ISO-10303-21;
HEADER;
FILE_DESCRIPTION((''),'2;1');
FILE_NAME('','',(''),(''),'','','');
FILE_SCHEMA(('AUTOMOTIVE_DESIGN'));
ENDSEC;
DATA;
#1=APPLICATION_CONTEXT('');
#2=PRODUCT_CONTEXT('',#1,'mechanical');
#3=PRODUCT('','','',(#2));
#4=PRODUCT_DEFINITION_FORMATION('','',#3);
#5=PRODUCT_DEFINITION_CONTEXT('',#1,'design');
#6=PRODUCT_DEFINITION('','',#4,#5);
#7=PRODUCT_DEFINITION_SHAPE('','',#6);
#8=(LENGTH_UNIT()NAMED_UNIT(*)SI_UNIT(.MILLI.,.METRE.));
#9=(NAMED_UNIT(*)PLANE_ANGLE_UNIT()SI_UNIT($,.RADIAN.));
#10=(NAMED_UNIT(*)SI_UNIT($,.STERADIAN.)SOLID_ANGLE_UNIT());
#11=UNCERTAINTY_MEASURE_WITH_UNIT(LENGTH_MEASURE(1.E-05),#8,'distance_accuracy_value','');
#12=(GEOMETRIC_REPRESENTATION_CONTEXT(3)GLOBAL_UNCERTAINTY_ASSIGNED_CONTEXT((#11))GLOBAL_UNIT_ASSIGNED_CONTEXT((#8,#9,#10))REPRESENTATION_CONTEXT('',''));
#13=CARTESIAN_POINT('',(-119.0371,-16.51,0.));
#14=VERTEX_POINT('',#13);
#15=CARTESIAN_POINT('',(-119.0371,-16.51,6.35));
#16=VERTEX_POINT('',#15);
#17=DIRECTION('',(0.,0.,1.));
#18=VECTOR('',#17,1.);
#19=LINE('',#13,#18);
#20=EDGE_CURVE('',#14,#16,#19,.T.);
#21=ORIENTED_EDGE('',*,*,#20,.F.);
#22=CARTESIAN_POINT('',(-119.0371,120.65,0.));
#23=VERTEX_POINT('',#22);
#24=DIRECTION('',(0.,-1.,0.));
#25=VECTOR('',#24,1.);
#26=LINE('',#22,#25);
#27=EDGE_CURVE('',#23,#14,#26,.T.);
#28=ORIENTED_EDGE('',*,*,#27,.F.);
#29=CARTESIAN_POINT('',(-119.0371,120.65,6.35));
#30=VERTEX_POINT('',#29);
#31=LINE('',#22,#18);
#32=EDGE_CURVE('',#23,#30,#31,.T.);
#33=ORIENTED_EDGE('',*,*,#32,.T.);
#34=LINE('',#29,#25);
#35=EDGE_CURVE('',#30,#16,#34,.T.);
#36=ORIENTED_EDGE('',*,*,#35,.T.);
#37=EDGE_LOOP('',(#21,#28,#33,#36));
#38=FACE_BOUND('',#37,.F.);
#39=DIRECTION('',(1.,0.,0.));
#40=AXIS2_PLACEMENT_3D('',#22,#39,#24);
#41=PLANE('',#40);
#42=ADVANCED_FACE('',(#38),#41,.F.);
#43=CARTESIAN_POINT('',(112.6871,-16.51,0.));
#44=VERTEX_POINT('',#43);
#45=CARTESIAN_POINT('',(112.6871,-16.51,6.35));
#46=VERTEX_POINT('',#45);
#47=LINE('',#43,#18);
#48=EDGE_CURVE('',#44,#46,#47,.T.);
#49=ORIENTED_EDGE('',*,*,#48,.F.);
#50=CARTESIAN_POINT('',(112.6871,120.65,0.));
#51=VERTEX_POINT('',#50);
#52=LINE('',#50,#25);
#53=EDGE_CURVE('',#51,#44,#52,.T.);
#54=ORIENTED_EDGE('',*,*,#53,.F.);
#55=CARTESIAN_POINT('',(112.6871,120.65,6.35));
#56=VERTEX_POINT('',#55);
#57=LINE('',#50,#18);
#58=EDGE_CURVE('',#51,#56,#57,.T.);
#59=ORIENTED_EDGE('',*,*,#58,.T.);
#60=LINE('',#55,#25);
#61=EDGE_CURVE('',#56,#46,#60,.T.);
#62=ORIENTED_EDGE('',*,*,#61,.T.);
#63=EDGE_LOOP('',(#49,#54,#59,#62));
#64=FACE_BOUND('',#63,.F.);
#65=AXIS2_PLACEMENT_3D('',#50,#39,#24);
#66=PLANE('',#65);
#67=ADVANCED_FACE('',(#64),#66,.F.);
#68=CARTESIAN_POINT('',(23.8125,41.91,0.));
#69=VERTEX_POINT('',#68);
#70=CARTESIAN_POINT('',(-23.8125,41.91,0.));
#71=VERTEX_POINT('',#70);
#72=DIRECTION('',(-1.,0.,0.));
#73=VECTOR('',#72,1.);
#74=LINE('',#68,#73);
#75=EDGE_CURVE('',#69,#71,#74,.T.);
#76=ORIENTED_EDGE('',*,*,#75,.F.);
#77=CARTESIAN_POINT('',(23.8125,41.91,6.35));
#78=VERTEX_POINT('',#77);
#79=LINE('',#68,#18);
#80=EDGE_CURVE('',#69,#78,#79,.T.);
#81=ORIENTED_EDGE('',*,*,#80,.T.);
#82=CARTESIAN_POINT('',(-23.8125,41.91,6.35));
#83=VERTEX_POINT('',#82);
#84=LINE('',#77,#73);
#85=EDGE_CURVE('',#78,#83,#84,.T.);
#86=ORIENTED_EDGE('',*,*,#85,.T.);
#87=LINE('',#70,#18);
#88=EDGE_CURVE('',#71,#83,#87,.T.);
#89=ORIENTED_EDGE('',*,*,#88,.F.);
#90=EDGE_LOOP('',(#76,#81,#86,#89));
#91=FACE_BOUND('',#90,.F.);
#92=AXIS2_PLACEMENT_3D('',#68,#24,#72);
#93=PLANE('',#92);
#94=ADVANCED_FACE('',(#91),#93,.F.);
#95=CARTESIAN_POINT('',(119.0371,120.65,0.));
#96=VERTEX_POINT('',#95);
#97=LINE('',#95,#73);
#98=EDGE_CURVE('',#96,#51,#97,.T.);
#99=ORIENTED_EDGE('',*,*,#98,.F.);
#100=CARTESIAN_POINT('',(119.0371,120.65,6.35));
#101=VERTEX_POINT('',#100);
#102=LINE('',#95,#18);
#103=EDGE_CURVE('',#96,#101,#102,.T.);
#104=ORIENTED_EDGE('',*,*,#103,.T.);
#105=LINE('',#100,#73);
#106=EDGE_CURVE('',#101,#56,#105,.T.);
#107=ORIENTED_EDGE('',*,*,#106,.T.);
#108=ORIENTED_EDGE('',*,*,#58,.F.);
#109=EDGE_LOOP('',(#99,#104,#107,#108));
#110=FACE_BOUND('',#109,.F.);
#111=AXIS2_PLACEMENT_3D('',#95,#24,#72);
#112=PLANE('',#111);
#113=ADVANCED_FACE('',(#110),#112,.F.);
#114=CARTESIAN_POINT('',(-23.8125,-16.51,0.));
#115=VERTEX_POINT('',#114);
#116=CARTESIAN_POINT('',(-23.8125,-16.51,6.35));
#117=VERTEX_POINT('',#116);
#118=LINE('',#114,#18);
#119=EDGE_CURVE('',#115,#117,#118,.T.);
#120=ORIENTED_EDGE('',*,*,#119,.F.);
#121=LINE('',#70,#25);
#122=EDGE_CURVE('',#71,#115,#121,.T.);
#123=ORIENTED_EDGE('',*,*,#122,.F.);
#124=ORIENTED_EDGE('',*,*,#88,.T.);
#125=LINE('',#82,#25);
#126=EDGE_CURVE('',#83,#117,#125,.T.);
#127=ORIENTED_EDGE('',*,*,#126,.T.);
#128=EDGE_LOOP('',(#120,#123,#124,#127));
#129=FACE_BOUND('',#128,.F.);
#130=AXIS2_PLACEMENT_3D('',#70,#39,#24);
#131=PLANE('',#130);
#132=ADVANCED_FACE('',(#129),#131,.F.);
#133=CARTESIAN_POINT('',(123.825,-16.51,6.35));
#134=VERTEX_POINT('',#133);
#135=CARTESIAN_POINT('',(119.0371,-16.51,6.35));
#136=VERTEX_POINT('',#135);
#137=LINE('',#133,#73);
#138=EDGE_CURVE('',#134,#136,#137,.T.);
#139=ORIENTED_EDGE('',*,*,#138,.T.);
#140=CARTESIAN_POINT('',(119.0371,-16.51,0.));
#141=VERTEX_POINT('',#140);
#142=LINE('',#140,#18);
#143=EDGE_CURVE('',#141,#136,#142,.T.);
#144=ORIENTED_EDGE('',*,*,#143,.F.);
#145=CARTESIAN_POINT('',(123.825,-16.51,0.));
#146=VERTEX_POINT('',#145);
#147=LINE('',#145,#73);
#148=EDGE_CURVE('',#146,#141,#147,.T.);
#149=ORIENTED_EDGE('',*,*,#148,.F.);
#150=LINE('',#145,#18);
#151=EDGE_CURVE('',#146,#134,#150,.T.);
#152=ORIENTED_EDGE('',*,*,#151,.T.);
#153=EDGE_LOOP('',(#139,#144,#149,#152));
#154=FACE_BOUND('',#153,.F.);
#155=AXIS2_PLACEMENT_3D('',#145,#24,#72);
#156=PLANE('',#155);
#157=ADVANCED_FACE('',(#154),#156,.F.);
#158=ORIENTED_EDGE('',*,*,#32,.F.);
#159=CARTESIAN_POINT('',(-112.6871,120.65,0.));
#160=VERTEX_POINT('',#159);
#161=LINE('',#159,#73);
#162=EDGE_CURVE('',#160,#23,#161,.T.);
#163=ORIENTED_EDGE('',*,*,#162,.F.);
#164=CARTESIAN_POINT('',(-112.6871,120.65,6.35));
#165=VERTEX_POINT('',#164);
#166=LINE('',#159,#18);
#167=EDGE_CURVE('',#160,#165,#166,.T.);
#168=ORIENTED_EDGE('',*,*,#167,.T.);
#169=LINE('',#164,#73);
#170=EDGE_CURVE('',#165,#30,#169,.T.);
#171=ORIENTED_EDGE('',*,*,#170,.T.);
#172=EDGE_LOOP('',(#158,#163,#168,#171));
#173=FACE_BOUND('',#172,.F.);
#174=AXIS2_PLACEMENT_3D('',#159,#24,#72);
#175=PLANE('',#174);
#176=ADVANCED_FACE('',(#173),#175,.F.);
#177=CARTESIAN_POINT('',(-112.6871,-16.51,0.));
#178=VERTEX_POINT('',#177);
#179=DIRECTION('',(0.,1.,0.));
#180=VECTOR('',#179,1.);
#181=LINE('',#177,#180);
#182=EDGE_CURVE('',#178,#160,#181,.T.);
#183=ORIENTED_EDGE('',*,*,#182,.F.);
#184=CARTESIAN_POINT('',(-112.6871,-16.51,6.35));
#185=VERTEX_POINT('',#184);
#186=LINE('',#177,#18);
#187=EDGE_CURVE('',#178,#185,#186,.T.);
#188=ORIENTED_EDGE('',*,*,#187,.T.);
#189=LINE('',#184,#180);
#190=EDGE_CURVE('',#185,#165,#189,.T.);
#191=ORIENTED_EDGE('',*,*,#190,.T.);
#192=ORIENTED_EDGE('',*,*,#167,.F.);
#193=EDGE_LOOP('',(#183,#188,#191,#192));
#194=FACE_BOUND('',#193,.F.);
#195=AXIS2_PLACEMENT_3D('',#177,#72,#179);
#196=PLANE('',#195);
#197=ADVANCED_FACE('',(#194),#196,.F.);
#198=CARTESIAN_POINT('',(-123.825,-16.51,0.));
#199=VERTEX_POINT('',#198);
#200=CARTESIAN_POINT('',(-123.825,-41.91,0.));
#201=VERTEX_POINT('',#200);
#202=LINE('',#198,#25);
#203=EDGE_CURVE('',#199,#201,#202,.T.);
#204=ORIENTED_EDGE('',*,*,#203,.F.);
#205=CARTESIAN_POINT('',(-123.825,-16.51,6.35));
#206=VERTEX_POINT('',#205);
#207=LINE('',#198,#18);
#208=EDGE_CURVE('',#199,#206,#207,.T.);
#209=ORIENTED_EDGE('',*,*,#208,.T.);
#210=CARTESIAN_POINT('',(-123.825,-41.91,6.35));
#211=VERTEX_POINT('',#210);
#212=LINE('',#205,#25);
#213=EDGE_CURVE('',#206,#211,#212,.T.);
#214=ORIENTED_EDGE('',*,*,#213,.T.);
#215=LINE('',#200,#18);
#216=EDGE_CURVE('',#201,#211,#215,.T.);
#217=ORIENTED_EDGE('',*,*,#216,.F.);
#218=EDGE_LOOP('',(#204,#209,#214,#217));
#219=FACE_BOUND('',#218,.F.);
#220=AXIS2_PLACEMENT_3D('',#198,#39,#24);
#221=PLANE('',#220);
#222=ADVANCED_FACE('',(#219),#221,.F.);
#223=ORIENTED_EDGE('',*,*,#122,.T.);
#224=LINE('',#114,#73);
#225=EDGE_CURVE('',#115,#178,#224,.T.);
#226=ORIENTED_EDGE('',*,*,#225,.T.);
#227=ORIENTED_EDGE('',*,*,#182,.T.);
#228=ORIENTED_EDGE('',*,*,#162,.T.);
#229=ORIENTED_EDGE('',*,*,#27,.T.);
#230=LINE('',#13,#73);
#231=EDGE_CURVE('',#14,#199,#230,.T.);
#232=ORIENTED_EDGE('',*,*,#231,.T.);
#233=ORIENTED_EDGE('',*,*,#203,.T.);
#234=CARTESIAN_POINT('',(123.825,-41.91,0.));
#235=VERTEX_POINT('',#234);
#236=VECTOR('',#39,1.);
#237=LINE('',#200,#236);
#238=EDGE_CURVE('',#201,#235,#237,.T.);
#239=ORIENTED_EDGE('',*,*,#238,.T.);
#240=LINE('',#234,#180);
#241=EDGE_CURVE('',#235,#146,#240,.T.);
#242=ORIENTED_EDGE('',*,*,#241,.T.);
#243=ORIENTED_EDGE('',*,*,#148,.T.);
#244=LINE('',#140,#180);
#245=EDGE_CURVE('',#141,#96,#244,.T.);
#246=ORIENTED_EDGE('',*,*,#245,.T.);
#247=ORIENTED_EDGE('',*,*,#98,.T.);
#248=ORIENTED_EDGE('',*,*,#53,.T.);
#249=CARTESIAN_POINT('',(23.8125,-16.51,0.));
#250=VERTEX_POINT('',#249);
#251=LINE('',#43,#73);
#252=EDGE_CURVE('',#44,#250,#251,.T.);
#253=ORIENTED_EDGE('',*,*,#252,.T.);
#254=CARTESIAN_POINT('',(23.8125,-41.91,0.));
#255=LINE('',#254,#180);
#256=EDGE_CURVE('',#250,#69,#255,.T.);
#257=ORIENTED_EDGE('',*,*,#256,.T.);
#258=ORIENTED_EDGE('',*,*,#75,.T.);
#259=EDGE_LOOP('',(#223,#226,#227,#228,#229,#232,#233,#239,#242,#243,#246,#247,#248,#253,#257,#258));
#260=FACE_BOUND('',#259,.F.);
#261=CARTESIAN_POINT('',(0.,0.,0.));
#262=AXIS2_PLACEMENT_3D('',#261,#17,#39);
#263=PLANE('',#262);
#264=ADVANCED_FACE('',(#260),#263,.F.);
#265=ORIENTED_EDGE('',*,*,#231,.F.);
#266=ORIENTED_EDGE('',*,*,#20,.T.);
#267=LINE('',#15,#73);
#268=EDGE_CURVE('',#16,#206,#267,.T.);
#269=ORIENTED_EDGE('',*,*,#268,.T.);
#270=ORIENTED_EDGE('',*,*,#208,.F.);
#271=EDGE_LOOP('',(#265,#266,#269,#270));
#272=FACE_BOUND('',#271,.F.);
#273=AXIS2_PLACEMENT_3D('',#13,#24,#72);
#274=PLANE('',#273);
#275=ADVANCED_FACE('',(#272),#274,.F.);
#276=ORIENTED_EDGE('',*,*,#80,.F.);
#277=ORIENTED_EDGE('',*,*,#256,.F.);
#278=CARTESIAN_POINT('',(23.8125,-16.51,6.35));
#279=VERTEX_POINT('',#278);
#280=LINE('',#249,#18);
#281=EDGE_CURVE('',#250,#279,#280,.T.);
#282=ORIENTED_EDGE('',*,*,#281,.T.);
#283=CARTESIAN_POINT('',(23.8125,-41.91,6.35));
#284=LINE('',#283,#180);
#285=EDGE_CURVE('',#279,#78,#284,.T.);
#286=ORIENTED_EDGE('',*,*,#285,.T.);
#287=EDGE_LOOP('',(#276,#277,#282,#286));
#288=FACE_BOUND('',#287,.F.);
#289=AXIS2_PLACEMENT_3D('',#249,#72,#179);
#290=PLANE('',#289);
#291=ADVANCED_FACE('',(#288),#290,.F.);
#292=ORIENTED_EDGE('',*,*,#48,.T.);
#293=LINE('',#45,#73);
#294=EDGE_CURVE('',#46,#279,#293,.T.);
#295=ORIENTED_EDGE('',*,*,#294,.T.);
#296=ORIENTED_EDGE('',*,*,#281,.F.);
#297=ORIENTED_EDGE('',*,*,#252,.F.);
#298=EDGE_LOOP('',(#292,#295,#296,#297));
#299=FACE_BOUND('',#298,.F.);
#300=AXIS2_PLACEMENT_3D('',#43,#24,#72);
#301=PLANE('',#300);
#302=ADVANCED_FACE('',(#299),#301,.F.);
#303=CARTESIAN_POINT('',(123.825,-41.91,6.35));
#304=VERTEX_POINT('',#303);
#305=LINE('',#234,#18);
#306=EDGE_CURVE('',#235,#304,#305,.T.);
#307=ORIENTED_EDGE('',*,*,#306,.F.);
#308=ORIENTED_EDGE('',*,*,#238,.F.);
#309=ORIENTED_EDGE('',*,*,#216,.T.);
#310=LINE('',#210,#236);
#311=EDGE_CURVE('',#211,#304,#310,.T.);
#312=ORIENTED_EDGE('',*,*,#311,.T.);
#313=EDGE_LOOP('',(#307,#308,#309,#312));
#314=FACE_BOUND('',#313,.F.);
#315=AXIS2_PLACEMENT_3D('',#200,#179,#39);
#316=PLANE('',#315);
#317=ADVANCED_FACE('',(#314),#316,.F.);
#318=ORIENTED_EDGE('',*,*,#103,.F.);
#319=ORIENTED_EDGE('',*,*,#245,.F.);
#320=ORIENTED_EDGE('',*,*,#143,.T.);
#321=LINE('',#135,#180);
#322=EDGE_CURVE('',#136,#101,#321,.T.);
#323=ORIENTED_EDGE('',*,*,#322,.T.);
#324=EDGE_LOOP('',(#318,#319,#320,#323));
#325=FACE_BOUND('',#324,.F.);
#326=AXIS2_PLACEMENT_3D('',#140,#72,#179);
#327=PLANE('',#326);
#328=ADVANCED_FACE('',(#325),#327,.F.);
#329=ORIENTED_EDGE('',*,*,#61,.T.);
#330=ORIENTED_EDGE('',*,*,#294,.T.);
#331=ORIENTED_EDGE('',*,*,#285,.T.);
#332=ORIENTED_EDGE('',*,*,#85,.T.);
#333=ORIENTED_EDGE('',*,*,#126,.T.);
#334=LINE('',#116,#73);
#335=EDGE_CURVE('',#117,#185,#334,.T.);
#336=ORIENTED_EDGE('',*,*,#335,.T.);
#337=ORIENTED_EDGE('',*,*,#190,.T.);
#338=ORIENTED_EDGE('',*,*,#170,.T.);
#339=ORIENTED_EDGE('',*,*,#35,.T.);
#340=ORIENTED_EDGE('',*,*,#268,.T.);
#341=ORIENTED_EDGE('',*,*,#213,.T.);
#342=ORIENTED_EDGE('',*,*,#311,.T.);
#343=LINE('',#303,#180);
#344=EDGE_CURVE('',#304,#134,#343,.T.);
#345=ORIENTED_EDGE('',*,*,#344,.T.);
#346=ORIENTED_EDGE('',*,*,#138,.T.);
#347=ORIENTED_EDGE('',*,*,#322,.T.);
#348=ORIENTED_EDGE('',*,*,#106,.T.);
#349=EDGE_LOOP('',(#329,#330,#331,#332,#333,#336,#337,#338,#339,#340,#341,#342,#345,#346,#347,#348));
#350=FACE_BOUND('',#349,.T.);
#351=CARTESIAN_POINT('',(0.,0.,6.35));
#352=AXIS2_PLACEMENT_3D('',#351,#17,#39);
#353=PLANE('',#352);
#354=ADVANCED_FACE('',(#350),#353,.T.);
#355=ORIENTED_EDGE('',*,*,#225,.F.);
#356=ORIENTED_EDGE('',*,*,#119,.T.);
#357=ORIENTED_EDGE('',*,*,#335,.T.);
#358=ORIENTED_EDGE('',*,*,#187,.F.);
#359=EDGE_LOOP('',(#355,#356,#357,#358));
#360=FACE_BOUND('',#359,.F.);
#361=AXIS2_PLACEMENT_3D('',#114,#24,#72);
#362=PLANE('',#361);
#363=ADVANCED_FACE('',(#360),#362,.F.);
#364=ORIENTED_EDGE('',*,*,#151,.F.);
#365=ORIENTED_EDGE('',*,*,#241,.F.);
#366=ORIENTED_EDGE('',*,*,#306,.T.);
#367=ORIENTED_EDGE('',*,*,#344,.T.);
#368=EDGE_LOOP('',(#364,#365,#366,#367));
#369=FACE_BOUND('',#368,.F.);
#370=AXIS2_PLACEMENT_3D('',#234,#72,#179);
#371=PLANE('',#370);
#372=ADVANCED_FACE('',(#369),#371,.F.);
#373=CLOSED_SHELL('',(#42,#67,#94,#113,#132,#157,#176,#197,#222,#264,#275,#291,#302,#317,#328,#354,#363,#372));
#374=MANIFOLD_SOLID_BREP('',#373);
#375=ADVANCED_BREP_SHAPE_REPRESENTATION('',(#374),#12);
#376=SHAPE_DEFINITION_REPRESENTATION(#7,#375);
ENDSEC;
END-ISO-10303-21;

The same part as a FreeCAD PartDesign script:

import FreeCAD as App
import Part
import Sketcher

V = App.Vector
Q = App.Units.Quantity

doc = App.newDocument("Part")
body = doc.addObject("PartDesign::Body", "Body")

sketch1 = body.newObject("Sketcher::SketchObject", "Sketch")
sketch1.AttachmentSupport = (doc.getObject("XY_Plane"), [""])
sketch1.MapMode = "FlatFace"
sketch1.addGeometry(Part.LineSegment(V(23.8, 41.9, 0), V(-23.8, 41.9, 0)), False)
sketch1.addGeometry(Part.LineSegment(V(-23.8, 41.9, 0), V(-23.8, -16.5, 0)), False)
sketch1.addGeometry(Part.LineSegment(V(-23.8, -16.5, 0), V(-112.7, -16.5, 0)), False)
sketch1.addGeometry(Part.LineSegment(V(-112.7, -16.5, 0), V(-112.7, 120.7, 0)), False)
sketch1.addGeometry(Part.LineSegment(V(-112.7, 120.7, 0), V(-119, 120.7, 0)), False)
sketch1.addGeometry(Part.LineSegment(V(-119, 120.7, 0), V(-119, -16.5, 0)), False)
sketch1.addGeometry(Part.LineSegment(V(-119, -16.5, 0), V(-123.8, -16.5, 0)), False)
sketch1.addGeometry(Part.LineSegment(V(-123.8, -16.5, 0), V(-123.8, -41.9, 0)), False)
sketch1.addGeometry(Part.LineSegment(V(-123.8, -41.9, 0), V(123.8, -41.9, 0)), False)
sketch1.addGeometry(Part.LineSegment(V(123.8, -41.9, 0), V(123.8, -16.5, 0)), False)
sketch1.addGeometry(Part.LineSegment(V(123.8, -16.5, 0), V(119, -16.5, 0)), False)
sketch1.addGeometry(Part.LineSegment(V(119, -16.5, 0), V(119, 120.7, 0)), False)
sketch1.addGeometry(Part.LineSegment(V(119, 120.7, 0), V(112.7, 120.7, 0)), False)
sketch1.addGeometry(Part.LineSegment(V(112.7, 120.7, 0), V(112.7, -16.5, 0)), False)
sketch1.addGeometry(Part.LineSegment(V(112.7, -16.5, 0), V(23.8, -16.5, 0)), False)
sketch1.addGeometry(Part.LineSegment(V(23.8, -16.5, 0), V(23.8, 41.9, 0)), False)
sketch1.addConstraint(Sketcher.Constraint("Coincident", 0, 2, 1, 1))
sketch1.addConstraint(Sketcher.Constraint("Coincident", 1, 2, 2, 1))
sketch1.addConstraint(Sketcher.Constraint("Coincident", 2, 2, 3, 1))
sketch1.addConstraint(Sketcher.Constraint("Coincident", 3, 2, 4, 1))
sketch1.addConstraint(Sketcher.Constraint("Coincident", 4, 2, 5, 1))
sketch1.addConstraint(Sketcher.Constraint("Coincident", 5, 2, 6, 1))
sketch1.addConstraint(Sketcher.Constraint("Coincident", 6, 2, 7, 1))
sketch1.addConstraint(Sketcher.Constraint("Coincident", 7, 2, 8, 1))
sketch1.addConstraint(Sketcher.Constraint("Coincident", 8, 2, 9, 1))
sketch1.addConstraint(Sketcher.Constraint("Coincident", 9, 2, 10, 1))
sketch1.addConstraint(Sketcher.Constraint("Coincident", 10, 2, 11, 1))
sketch1.addConstraint(Sketcher.Constraint("Coincident", 11, 2, 12, 1))
sketch1.addConstraint(Sketcher.Constraint("Coincident", 12, 2, 13, 1))
sketch1.addConstraint(Sketcher.Constraint("Coincident", 13, 2, 14, 1))
sketch1.addConstraint(Sketcher.Constraint("Coincident", 14, 2, 15, 1))
sketch1.addConstraint(Sketcher.Constraint("Coincident", 15, 2, 0, 1))
sketch1.addConstraint(Sketcher.Constraint("Horizontal", 0))
sketch1.addConstraint(Sketcher.Constraint("Vertical", 1))
sketch1.addConstraint(Sketcher.Constraint("Horizontal", 2))
sketch1.addConstraint(Sketcher.Constraint("Vertical", 3))
sketch1.addConstraint(Sketcher.Constraint("Horizontal", 4))
sketch1.addConstraint(Sketcher.Constraint("Vertical", 5))
sketch1.addConstraint(Sketcher.Constraint("Horizontal", 6))
sketch1.addConstraint(Sketcher.Constraint("Vertical", 7))
sketch1.addConstraint(Sketcher.Constraint("Horizontal", 8))
sketch1.addConstraint(Sketcher.Constraint("Vertical", 9))
sketch1.addConstraint(Sketcher.Constraint("Horizontal", 10))
sketch1.addConstraint(Sketcher.Constraint("Vertical", 11))
sketch1.addConstraint(Sketcher.Constraint("Horizontal", 12))
sketch1.addConstraint(Sketcher.Constraint("Vertical", 13))
sketch1.addConstraint(Sketcher.Constraint("Horizontal", 14))
sketch1.addConstraint(Sketcher.Constraint("Vertical", 15))
sketch1.addConstraint(Sketcher.Constraint("Symmetric", 6, 2, 9, 2, -2))
sketch1.addConstraint(Sketcher.Constraint("Symmetric", 4, 2, 11, 2, -2))
sketch1.addConstraint(Sketcher.Constraint("Symmetric", 2, 2, 13, 2, -2))
sketch1.addConstraint(Sketcher.Constraint("Horizontal", 2, 2, 5, 2))
sketch1.addConstraint(Sketcher.Constraint("Equal", 2, 14))
sketch1.addConstraint(Sketcher.Constraint("DistanceY", 7, 2, 7, 1, Q("1 in")))
sketch1.addConstraint(Sketcher.Constraint("DistanceY", 1, 2, 1, 1, Q("2.3 in")))
sketch1.addConstraint(Sketcher.Constraint("DistanceY", 3, 1, 3, 2, Q("5.4 in")))
sketch1.addConstraint(Sketcher.Constraint("DistanceX", 4, 2, 4, 1, Q("0.25 in")))
sketch1.addConstraint(Sketcher.Constraint("DistanceX", 8, 1, 8, 2, Q("9.75 in")))
sketch1.addConstraint(Sketcher.Constraint("DistanceX", 0, 2, 0, 1, Q("1.875 in")))
sketch1.addConstraint(Sketcher.Constraint("DistanceX", 2, 2, 2, 1, Q("3.499 in")))
sketch1.addConstraint(Sketcher.Constraint("DistanceY", -1, 1, 0, 2, Q("1.65 in")))
pad1 = body.newObject("PartDesign::Pad", "Pad")
pad1.Profile = sketch1
pad1.Length = Q("0.25 in")

doc.recompute()
